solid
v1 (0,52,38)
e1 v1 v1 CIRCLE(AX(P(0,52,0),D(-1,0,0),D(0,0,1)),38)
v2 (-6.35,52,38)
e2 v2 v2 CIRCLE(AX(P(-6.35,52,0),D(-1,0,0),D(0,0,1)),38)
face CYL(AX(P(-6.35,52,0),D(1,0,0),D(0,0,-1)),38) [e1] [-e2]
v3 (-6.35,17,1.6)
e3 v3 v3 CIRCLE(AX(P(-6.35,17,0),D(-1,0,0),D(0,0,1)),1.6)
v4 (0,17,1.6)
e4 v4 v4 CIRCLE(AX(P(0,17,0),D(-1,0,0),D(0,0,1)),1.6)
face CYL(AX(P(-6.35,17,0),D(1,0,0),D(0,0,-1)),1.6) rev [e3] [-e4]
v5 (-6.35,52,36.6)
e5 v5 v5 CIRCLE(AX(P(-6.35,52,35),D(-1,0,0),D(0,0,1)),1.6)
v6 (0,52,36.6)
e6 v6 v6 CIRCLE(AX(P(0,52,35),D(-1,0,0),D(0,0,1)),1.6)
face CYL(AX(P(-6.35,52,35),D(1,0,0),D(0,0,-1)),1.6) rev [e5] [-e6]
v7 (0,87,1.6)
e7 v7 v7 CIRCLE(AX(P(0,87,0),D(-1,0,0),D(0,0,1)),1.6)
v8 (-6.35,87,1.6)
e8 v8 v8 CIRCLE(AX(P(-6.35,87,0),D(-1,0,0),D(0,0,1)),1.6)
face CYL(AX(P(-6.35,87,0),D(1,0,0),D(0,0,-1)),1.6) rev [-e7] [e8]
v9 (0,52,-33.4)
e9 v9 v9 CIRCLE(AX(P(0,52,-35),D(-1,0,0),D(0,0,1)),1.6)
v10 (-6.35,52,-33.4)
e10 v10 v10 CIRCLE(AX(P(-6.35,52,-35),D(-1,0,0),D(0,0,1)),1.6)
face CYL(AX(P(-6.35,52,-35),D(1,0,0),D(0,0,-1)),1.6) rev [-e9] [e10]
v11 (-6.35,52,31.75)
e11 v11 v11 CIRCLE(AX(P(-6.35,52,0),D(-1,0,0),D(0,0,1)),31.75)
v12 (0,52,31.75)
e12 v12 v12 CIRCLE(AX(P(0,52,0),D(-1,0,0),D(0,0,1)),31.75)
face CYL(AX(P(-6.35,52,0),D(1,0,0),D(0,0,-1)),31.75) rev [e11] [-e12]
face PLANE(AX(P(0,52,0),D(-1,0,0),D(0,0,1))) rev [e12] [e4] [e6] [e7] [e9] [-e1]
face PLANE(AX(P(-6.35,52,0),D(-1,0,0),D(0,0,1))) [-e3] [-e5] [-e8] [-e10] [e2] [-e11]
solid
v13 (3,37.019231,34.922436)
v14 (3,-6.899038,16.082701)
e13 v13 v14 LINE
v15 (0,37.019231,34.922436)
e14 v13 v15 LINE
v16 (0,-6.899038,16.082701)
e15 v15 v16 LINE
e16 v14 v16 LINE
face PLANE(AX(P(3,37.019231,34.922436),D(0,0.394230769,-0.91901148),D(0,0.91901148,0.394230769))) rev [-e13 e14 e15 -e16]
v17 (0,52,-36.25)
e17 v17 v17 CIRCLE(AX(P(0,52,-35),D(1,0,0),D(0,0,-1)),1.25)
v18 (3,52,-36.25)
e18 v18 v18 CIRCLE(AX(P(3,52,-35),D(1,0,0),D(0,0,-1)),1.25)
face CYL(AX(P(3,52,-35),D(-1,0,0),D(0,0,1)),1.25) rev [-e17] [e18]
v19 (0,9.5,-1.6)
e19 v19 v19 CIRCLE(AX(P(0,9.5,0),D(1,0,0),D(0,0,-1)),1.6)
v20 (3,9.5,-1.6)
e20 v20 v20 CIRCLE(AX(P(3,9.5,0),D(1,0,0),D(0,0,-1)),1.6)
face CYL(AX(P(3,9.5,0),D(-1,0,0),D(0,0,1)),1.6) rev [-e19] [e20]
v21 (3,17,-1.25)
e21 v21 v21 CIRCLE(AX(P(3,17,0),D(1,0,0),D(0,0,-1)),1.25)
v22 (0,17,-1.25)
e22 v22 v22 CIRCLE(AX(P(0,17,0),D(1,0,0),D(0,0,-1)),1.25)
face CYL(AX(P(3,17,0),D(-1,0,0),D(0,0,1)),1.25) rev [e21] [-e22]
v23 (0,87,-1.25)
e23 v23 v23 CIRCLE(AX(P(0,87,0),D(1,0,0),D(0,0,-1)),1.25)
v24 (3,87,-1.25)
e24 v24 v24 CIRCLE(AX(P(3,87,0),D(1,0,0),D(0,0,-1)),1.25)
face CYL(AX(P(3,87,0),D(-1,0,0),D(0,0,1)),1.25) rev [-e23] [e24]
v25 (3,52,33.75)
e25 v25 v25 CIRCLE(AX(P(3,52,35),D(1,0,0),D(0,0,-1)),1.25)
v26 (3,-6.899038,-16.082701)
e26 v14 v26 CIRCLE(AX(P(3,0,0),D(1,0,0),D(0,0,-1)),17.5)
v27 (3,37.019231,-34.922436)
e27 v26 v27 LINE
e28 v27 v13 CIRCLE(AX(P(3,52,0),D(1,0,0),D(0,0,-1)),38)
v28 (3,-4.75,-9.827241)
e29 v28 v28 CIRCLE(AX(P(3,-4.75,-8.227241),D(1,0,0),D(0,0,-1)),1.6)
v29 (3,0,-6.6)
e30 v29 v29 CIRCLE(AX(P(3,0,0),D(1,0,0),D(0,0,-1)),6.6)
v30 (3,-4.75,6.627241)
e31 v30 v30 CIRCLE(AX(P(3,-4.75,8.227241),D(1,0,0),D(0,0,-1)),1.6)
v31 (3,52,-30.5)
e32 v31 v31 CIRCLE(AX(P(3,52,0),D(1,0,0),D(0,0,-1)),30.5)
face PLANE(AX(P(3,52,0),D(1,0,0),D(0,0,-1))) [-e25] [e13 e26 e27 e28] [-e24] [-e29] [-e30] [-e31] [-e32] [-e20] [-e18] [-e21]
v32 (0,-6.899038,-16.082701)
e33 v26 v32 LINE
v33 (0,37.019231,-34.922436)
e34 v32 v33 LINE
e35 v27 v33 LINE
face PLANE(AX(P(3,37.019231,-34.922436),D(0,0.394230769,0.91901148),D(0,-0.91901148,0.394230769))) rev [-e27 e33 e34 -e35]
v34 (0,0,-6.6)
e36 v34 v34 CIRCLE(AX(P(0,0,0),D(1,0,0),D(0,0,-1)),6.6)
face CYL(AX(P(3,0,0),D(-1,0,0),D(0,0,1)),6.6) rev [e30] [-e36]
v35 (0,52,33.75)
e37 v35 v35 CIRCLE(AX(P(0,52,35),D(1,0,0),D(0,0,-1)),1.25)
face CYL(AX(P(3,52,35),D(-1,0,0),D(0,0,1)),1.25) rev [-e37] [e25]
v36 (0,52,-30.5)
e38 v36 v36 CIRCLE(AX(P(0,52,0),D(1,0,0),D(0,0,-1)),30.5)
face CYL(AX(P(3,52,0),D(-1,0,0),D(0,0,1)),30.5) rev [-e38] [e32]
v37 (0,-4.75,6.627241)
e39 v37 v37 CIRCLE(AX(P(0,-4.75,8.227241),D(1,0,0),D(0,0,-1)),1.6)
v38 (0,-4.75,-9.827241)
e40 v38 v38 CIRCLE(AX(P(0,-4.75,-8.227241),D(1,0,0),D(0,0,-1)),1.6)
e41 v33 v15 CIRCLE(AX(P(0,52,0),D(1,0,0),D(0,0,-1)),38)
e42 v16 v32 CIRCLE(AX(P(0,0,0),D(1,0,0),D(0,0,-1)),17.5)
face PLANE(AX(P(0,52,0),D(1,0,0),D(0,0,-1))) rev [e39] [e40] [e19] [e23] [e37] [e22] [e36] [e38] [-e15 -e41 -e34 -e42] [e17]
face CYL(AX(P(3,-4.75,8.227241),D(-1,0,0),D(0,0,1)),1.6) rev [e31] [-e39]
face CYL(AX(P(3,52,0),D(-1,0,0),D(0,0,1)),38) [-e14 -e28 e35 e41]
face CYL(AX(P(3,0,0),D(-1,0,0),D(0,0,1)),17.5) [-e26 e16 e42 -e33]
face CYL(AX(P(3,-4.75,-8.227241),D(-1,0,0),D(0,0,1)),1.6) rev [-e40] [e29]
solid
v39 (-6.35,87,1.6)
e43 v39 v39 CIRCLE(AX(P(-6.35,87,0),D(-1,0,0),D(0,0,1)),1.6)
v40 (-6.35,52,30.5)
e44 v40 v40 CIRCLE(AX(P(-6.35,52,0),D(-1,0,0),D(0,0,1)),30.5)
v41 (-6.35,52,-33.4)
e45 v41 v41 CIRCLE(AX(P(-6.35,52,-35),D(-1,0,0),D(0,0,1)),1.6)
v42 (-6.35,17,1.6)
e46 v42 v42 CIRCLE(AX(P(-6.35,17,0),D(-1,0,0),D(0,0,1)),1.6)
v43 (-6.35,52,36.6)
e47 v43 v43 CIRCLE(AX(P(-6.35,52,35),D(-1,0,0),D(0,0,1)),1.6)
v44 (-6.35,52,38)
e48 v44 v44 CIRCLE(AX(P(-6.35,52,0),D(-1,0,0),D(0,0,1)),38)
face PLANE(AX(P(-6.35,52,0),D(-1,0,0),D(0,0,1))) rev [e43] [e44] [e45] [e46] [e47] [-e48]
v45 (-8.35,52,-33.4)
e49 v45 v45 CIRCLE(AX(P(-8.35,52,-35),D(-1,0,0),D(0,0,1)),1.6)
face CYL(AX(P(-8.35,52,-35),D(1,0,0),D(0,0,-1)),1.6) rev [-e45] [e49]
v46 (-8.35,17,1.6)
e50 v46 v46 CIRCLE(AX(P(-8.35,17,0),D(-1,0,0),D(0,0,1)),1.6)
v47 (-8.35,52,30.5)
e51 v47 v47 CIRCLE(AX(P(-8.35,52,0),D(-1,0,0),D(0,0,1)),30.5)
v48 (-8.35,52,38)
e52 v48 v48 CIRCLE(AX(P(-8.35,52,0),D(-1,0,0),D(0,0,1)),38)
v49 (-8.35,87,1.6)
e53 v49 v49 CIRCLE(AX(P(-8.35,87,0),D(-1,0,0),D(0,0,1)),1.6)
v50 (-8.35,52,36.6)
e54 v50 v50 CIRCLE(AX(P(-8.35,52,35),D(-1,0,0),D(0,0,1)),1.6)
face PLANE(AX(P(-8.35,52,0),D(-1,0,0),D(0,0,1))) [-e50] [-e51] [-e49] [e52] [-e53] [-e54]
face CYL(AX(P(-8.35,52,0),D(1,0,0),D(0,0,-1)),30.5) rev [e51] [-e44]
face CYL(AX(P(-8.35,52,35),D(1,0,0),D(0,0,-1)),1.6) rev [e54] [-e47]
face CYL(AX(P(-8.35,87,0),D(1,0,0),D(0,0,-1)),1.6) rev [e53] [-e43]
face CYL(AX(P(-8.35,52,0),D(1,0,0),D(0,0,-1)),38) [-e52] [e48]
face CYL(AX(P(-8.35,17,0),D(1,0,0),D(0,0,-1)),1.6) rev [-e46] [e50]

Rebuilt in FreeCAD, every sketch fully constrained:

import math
import FreeCAD as App
import Part
import Sketcher
Q = App.Units.Quantity

doc = App.newDocument("Part")
body = doc.addObject("PartDesign::Body", "Body")

sketch1 = body.newObject("Sketcher::SketchObject", "Sketch")
sketch1.AttachmentSupport = (doc.getObject("YZ_Plane"), [""])
sketch1.MapMode = "FlatFace"
sketch1.addGeometry(Part.LineSegment(App.Vector(37.019231, 34.922436, 0), App.Vector(-6.899038, 16.082701, 0)), False)
sketch1.addGeometry(Part.ArcOfCircle(Part.Circle(App.Vector(0, 0, 0), App.Vector(0, 0, 1), 17.5), math.radians(113.218008), math.radians(246.781992)), False)
sketch1.addGeometry(Part.LineSegment(App.Vector(-6.899038, -16.082701, 0), App.Vector(37.019231, -34.922436, 0)), False)
sketch1.addGeometry(Part.ArcOfCircle(Part.Circle(App.Vector(52, 0, 0), App.Vector(0, 0, 1), 38), math.radians(-113.218008), math.radians(113.218008)), False)
sketch1.addGeometry(Part.Circle(App.Vector(-4.75, 8.227241, 0), App.Vector(0, 0, 1), 1.6), False)
sketch1.addGeometry(Part.Circle(App.Vector(-4.75, -8.227241, 0), App.Vector(0, 0, 1), 1.6), False)
sketch1.addGeometry(Part.Circle(App.Vector(0, 0, 0), App.Vector(0, 0, 1), 6.6), False)
sketch1.addGeometry(Part.Circle(App.Vector(9.5, 0, 0), App.Vector(0, 0, 1), 1.6), False)
sketch1.addGeometry(Part.Circle(App.Vector(17, 0, 0), App.Vector(0, 0, 1), 1.25), False)
sketch1.addGeometry(Part.Circle(App.Vector(52, 35, 0), App.Vector(0, 0, 1), 1.25), False)
sketch1.addGeometry(Part.Circle(App.Vector(52, 0, 0), App.Vector(0, 0, 1), 30.5), False)
sketch1.addGeometry(Part.Circle(App.Vector(52, -35, 0), App.Vector(0, 0, 1), 1.25), False)
sketch1.addGeometry(Part.Circle(App.Vector(87, 0, 0), App.Vector(0, 0, 1), 1.25), False)
sketch1.addConstraint(Sketcher.Constraint("Tangent", 0, 2, 1, 1))
sketch1.addConstraint(Sketcher.Constraint("Tangent", 1, 2, 2, 1))
sketch1.addConstraint(Sketcher.Constraint("Tangent", 2, 2, 3, 1))
sketch1.addConstraint(Sketcher.Constraint("Tangent", 3, 2, 0, 1))
sketch1.addConstraint(Sketcher.Constraint("Coincident", 1, 3, -1, 1))
sketch1.addConstraint(Sketcher.Constraint("Coincident", 6, 3, -1, 1))
sketch1.addConstraint(Sketcher.Constraint("Coincident", 10, 3, 3, 3))
sketch1.addConstraint(Sketcher.Constraint("Equal", 4, 5))
sketch1.addConstraint(Sketcher.Constraint("Equal", 5, 7))
sketch1.addConstraint(Sketcher.Constraint("Equal", 8, 9))
sketch1.addConstraint(Sketcher.Constraint("Equal", 9, 11))
sketch1.addConstraint(Sketcher.Constraint("Equal", 11, 12))
sketch1.addConstraint(Sketcher.Constraint("Symmetric", 4, 3, 5, 3, -1))
sketch1.addConstraint(Sketcher.Constraint("Symmetric", 9, 3, 11, 3, -1))
sketch1.addConstraint(Sketcher.Constraint("PointOnObject", 3, 3, -1))
sketch1.addConstraint(Sketcher.Constraint("PointOnObject", 7, 3, -1))
sketch1.addConstraint(Sketcher.Constraint("PointOnObject", 8, 3, -1))
sketch1.addConstraint(Sketcher.Constraint("PointOnObject", 12, 3, -1))
sketch1.addConstraint(Sketcher.Constraint("Vertical", 3, 3, 9, 3))
sketch1.addConstraint(Sketcher.Constraint("Diameter", 10, Q("61 mm")))
sketch1.addConstraint(Sketcher.Constraint("Radius", 3, Q("38 mm")))
sketch1.addConstraint(Sketcher.Constraint("Diameter", 4, Q("3.2 mm")))
sketch1.addConstraint(Sketcher.Constraint("Diameter", 6, Q("13.2 mm")))
sketch1.addConstraint(Sketcher.Constraint("Diameter", 8, Q("2.5 mm")))
sketch1.addConstraint(Sketcher.Constraint("Radius", 1, Q("17.5 mm")))
sketch1.addConstraint(Sketcher.Constraint("DistanceX", -1, 1, 3, 3, Q("52 mm")))
sketch1.addConstraint(Sketcher.Constraint("DistanceX", -1, 1, 8, 3, Q("17 mm")))
sketch1.addConstraint(Sketcher.Constraint("DistanceY", -1, 1, 9, 3, Q("35 mm")))
sketch1.addConstraint(Sketcher.Constraint("DistanceX", -1, 1, 12, 3, Q("87 mm")))
sketch1.addConstraint(Sketcher.Constraint("DistanceX", -1, 1, 7, 3, Q("9.5 mm")))
sketch1.addConstraint(Sketcher.Constraint("DistanceX", 4, 3, -1, 1, Q("4.75 mm")))
sketch1.addConstraint(Sketcher.Constraint("DistanceY", -1, 1, 4, 3, Q("8.227241 mm")))
pad1 = body.newObject("PartDesign::Pad", "Pad")
pad1.Profile = sketch1
pad1.Length = 3
body2 = doc.addObject("PartDesign::Body", "Body001")

sketch2 = body2.newObject("Sketcher::SketchObject", "Sketch001")
sketch2.AttachmentSupport = (doc.getObject("YZ_Plane001"), [""])
sketch2.MapMode = "FlatFace"
sketch2.addGeometry(Part.Circle(App.Vector(52, 0, 0), App.Vector(0, 0, 1), 38), False)
sketch2.addGeometry(Part.Circle(App.Vector(17, 0, 0), App.Vector(0, 0, 1), 1.6), False)
sketch2.addGeometry(Part.Circle(App.Vector(52, -35, 0), App.Vector(0, 0, 1), 1.6), False)
sketch2.addGeometry(Part.Circle(App.Vector(52, 0, 0), App.Vector(0, 0, 1), 31.75), False)
sketch2.addGeometry(Part.Circle(App.Vector(52, 35, 0), App.Vector(0, 0, 1), 1.6), False)
sketch2.addGeometry(Part.Circle(App.Vector(87, 0, 0), App.Vector(0, 0, 1), 1.6), False)
sketch2.addConstraint(Sketcher.Constraint("Coincident", 3, 3, 0, 3))
sketch2.addConstraint(Sketcher.Constraint("Equal", 1, 2))
sketch2.addConstraint(Sketcher.Constraint("Equal", 2, 4))
sketch2.addConstraint(Sketcher.Constraint("Equal", 4, 5))
sketch2.addConstraint(Sketcher.Constraint("Symmetric", 2, 3, 4, 3, -1))
sketch2.addConstraint(Sketcher.Constraint("PointOnObject", 0, 3, -1))
sketch2.addConstraint(Sketcher.Constraint("PointOnObject", 1, 3, -1))
sketch2.addConstraint(Sketcher.Constraint("PointOnObject", 5, 3, -1))
sketch2.addConstraint(Sketcher.Constraint("Vertical", 0, 3, 2, 3))
sketch2.addConstraint(Sketcher.Constraint("Diameter", 0, Q("76 mm")))
sketch2.addConstraint(Sketcher.Constraint("Diameter", 1, Q("3.2 mm")))
sketch2.addConstraint(Sketcher.Constraint("Diameter", 3, Q("63.5 mm")))
sketch2.addConstraint(Sketcher.Constraint("DistanceX", -1, 1, 0, 3, Q("52 mm")))
sketch2.addConstraint(Sketcher.Constraint("DistanceX", -1, 1, 1, 3, Q("17 mm")))
sketch2.addConstraint(Sketcher.Constraint("DistanceY", 2, 3, -1, 1, Q("35 mm")))
sketch2.addConstraint(Sketcher.Constraint("DistanceX", -1, 1, 5, 3, Q("87 mm")))
pad2 = body2.newObject("PartDesign::Pad", "Pad001")
pad2.Profile = sketch2
pad2.Length = 6.35
pad2.Reversed = True
body3 = doc.addObject("PartDesign::Body", "Body002")

sketch3 = body3.newObject("Sketcher::SketchObject", "Sketch002")
sketch3.AttachmentSupport = (doc.getObject("YZ_Plane002"), [""])
sketch3.MapMode = "FlatFace"
sketch3.AttachmentOffset = App.Placement(App.Vector(0, 0, -6.35), App.Rotation())
sketch3.addGeometry(Part.Circle(App.Vector(52, 0, 0), App.Vector(0, 0, 1), 38), False)
sketch3.addGeometry(Part.Circle(App.Vector(17, 0, 0), App.Vector(0, 0, 1), 1.6), False)
sketch3.addGeometry(Part.Circle(App.Vector(52, -35, 0), App.Vector(0, 0, 1), 1.6), False)
sketch3.addGeometry(Part.Circle(App.Vector(52, 0, 0), App.Vector(0, 0, 1), 30.5), False)
sketch3.addGeometry(Part.Circle(App.Vector(52, 35, 0), App.Vector(0, 0, 1), 1.6), False)
sketch3.addGeometry(Part.Circle(App.Vector(87, 0, 0), App.Vector(0, 0, 1), 1.6), False)
sketch3.addConstraint(Sketcher.Constraint("Coincident", 3, 3, 0, 3))
sketch3.addConstraint(Sketcher.Constraint("Equal", 1, 2))
sketch3.addConstraint(Sketcher.Constraint("Equal", 2, 4))
sketch3.addConstraint(Sketcher.Constraint("Equal", 4, 5))
sketch3.addConstraint(Sketcher.Constraint("Symmetric", 2, 3, 4, 3, -1))
sketch3.addConstraint(Sketcher.Constraint("PointOnObject", 0, 3, -1))
sketch3.addConstraint(Sketcher.Constraint("PointOnObject", 1, 3, -1))
sketch3.addConstraint(Sketcher.Constraint("PointOnObject", 5, 3, -1))
sketch3.addConstraint(Sketcher.Constraint("Vertical", 0, 3, 2, 3))
sketch3.addConstraint(Sketcher.Constraint("Diameter", 0, Q("76 mm")))
sketch3.addConstraint(Sketcher.Constraint("Diameter", 3, Q("61 mm")))
sketch3.addConstraint(Sketcher.Constraint("Diameter", 1, Q("3.2 mm")))
sketch3.addConstraint(Sketcher.Constraint("DistanceX", -1, 1, 0, 3, Q("52 mm")))
sketch3.addConstraint(Sketcher.Constraint("DistanceX", -1, 1, 1, 3, Q("17 mm")))
sketch3.addConstraint(Sketcher.Constraint("DistanceY", 2, 3, -1, 1, Q("35 mm")))
sketch3.addConstraint(Sketcher.Constraint("DistanceX", -1, 1, 5, 3, Q("87 mm")))
pad3 = body3.newObject("PartDesign::Pad", "Pad002")
pad3.Profile = sketch3
pad3.Length = 2
pad3.Reversed = True

doc.recompute()
